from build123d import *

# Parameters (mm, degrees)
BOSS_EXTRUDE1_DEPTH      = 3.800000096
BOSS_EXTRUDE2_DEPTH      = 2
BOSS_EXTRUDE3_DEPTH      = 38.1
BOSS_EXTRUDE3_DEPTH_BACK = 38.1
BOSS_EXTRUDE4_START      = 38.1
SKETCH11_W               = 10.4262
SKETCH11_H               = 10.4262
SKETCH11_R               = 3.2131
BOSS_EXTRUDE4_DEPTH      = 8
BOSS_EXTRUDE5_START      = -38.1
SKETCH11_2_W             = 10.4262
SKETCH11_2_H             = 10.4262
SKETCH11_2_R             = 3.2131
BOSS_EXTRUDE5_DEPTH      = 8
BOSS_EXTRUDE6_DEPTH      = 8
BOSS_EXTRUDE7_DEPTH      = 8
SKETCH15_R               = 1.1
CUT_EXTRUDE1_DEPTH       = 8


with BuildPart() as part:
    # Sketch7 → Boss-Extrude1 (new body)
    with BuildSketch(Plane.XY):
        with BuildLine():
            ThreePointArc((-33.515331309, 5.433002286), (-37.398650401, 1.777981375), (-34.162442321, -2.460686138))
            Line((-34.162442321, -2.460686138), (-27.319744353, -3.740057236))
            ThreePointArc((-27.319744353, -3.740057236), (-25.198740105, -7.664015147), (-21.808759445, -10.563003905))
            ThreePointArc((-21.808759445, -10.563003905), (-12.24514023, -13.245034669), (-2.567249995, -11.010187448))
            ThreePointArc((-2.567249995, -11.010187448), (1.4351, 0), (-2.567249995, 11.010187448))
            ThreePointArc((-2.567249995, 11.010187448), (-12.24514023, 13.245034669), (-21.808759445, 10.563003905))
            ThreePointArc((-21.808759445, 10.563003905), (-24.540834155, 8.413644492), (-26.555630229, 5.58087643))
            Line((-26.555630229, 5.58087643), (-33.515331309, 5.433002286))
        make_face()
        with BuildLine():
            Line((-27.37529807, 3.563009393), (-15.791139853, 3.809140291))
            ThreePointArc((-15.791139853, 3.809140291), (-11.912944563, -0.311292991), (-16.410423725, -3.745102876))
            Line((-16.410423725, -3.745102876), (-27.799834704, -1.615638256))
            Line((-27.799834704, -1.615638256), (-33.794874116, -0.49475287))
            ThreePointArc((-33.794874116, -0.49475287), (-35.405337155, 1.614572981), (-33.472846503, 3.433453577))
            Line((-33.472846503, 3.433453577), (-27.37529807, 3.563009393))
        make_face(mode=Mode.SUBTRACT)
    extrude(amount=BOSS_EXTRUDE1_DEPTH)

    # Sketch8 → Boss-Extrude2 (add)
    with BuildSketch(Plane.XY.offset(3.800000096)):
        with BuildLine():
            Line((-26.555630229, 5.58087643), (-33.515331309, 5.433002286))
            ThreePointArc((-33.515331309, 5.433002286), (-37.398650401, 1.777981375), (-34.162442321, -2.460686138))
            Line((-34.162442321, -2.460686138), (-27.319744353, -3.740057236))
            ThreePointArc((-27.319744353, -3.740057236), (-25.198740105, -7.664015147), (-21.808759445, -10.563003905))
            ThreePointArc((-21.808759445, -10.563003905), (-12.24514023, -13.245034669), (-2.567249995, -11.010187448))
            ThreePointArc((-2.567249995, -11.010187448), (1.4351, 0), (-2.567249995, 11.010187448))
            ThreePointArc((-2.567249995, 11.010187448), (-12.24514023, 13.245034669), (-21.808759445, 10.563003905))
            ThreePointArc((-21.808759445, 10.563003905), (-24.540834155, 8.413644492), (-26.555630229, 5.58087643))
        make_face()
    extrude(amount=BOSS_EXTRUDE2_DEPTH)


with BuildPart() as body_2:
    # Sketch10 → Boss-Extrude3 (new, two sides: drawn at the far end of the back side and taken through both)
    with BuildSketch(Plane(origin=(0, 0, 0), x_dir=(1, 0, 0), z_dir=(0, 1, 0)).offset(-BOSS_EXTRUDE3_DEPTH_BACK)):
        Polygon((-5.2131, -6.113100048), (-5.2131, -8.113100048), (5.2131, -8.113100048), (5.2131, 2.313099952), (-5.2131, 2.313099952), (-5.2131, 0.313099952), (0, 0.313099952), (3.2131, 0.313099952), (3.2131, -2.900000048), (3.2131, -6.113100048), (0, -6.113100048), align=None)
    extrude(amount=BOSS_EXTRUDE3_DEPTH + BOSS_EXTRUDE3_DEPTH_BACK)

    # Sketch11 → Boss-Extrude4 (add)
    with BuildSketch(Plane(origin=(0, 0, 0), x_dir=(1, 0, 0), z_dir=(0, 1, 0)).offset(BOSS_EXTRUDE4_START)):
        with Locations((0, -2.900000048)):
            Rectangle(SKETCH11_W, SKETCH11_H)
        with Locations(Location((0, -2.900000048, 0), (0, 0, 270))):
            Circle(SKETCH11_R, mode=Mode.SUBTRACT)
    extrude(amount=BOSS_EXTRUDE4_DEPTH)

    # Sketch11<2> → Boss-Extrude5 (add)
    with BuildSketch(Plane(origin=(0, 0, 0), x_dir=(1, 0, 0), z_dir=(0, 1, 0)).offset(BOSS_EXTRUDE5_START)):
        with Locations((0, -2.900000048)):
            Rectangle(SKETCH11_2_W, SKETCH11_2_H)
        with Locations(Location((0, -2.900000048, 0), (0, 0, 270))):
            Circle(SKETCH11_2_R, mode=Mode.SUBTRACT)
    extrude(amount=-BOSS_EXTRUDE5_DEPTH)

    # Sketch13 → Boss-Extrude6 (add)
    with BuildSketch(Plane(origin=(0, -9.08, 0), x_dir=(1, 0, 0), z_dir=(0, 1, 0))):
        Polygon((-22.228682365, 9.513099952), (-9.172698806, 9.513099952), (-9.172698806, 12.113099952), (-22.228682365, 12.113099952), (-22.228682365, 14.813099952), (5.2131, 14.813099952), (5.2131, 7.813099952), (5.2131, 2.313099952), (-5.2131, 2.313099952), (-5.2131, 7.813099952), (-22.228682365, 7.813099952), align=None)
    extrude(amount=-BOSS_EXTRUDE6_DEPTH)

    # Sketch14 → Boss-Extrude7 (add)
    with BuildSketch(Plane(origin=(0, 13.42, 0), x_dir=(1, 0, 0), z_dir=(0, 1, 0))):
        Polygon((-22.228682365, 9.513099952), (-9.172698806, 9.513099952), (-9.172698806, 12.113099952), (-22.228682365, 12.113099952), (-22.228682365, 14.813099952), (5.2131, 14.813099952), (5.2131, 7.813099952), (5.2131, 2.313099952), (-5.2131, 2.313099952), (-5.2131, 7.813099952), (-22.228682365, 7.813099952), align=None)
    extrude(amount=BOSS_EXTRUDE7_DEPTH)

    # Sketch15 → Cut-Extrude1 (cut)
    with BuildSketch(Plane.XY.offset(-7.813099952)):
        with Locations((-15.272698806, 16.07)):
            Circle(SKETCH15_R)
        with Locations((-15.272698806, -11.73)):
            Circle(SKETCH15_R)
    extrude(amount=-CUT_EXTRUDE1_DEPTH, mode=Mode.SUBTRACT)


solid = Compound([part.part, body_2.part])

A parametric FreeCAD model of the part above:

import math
import FreeCAD as App
import Part
import Sketcher

V = App.Vector


def add_polygon(sketch, points):
    """Adds a closed chain of lines whose ends are joined by coincident constraints."""
    first, n = sketch.GeometryCount, len(points)
    for a, b in zip(points, points[1:] + points[:1]):
        sketch.addGeometry(Part.LineSegment(App.Vector(*a, 0), App.Vector(*b, 0)), False)
    for i in range(n):
        sketch.addConstraint(Sketcher.Constraint("Coincident", first + i, 2, first + (i + 1) % n, 1))

doc = App.newDocument("Part")
body = doc.addObject("PartDesign::Body", "Body")

# Sketch on XY plane
sketch1 = doc.addObject("Sketcher::SketchObject", "Sketch")
body.addObject(sketch1)
sketch1.AttachmentSupport = (doc.XY_Plane, [""])
sketch1.MapMode = "FlatFace"
sketch1.addGeometry([
    Part.ArcOfCircle(Part.Circle(V(-33.4, 1.5, 0), V(0, 0, 1), 4), math.radians(91), math.radians(259)),  # 0
    Part.LineSegment(V(-34.2, -2.5, 0), V(-27.3, -3.7, 0)),  # 1
    Part.ArcOfCircle(Part.Circle(V(-15.7, 0, 0), V(0, 0, 1), 12.2), math.radians(-162), math.radians(-120)),  # 2
    Part.ArcOfCircle(Part.Circle(V(-11.8, 6.8, 0), V(0, 0, 1), 20.1), math.radians(-120), math.radians(-63)),  # 3
    Part.ArcOfCircle(Part.Circle(V(-15.7, 0, 0), V(0, 0, 1), 17.1), math.radians(-40), math.radians(40)),  # 4
    Part.ArcOfCircle(Part.Circle(V(-11.8, -6.8, 0), V(0, 0, 1), 20.1), math.radians(63), math.radians(120)),  # 5
    Part.ArcOfCircle(Part.Circle(V(-15.7, 0, 0), V(0, 0, 1), 12.2), math.radians(120), math.radians(153)),  # 6
    Part.LineSegment(V(-26.6, 5.6, 0), V(-33.5, 5.4, 0)),  # 7
    Part.LineSegment(V(-33.5, 3.4, 0), V(-27.4, 3.6, 0)),  # 8
    Part.LineSegment(V(-27.4, 3.6, 0), V(-15.8, 3.8, 0)),  # 9
    Part.ArcOfCircle(Part.Circle(V(-15.7, 0, 0), V(0, 0, 1), 3.8), math.radians(-101), math.radians(91)),  # 10
    Part.LineSegment(V(-16.4, -3.7, 0), V(-27.8, -1.6, 0)),  # 11
    Part.LineSegment(V(-27.8, -1.6, 0), V(-33.8, -0.5, 0)),  # 12
    Part.ArcOfCircle(Part.Circle(V(-33.4, 1.5, 0), V(0, 0, 1), 2), math.radians(91), math.radians(259)),  # 13
], False)
sketch1.addConstraint([
    Sketcher.Constraint("Tangent", 0, 2, 1, 1),
    Sketcher.Constraint("Coincident", 1, 2, 2, 1),
    Sketcher.Constraint("Tangent", 2, 2, 3, 1),
    Sketcher.Constraint("Coincident", 3, 2, 4, 1),
    Sketcher.Constraint("Coincident", 4, 2, 5, 1),
    Sketcher.Constraint("Tangent", 5, 2, 6, 1),
    Sketcher.Constraint("Coincident", 6, 2, 7, 1),
    Sketcher.Constraint("Tangent", 7, 2, 0, 1),
    Sketcher.Constraint("Coincident", 8, 2, 9, 1),
    Sketcher.Constraint("Tangent", 9, 2, 10, 2),
    Sketcher.Constraint("Tangent", 10, 1, 11, 1),
    Sketcher.Constraint("Coincident", 11, 2, 12, 1),
    Sketcher.Constraint("Tangent", 12, 2, 13, 2),
    Sketcher.Constraint("Tangent", 13, 1, 8, 1),
    Sketcher.Constraint("Coincident", 4, 3, 2, 3),
    Sketcher.Constraint("Coincident", 6, 3, 2, 3),
    Sketcher.Constraint("Coincident", 10, 3, 2, 3),
    Sketcher.Constraint("Coincident", 13, 3, 0, 3),
    Sketcher.Constraint("Equal", 3, 5),
    Sketcher.Constraint("Equal", 2, 6),
    Sketcher.Constraint("Symmetric", 3, 3, 5, 3, -1),
    Sketcher.Constraint("Parallel", 7, 8),
    Sketcher.Constraint("Parallel", 8, 9),
    Sketcher.Constraint("Parallel", 1, 11),
    Sketcher.Constraint("Parallel", 11, 12),
    Sketcher.Constraint("Equal", 9, 11),
    Sketcher.Constraint("Radius", 10, 3.81),
    Sketcher.Constraint("Radius", 0, 3.9812),
    Sketcher.Constraint("Radius", 13, 1.9812),
    Sketcher.Constraint("Radius", 3, 20.059369),
    Sketcher.Constraint("Radius", 2, 12.197106),
    Sketcher.Constraint("Radius", 4, 17.145306),
    Sketcher.Constraint("DistanceY", -1, 1, 0, 3, 1.452701),
    Sketcher.Constraint("DistanceX", 8, 2, -1, 1, 27.375298),
    Sketcher.Constraint("DistanceX", 7, 2, 6, 2, 6.959701),
    Sketcher.Constraint("DistanceX", 0, 3, -1, 1, 33.430761),
    Sketcher.Constraint("DistanceY", -1, 1, 3, 3, 6.808919),
])
pad1 = doc.addObject("PartDesign::Pad", "Pad")
body.addObject(pad1)
pad1.Profile = sketch1
pad1.Length = 3.8

# Sketch on XY plane
sketch2 = doc.addObject("Sketcher::SketchObject", "Sketch001")
body.addObject(sketch2)
sketch2.AttachmentSupport = (doc.XY_Plane, [""])
sketch2.MapMode = "FlatFace"
sketch2.AttachmentOffset = App.Placement(V(0, 0, 3.8), App.Rotation())
sketch2.addGeometry([
    Part.LineSegment(V(-26.55563, 5.580876, 0), V(-33.515331, 5.433002, 0)),  # 0
    Part.ArcOfCircle(Part.Circle(V(-33.430761, 1.452701, 0), V(0, 0, 1), 3.9812), math.radians(91.217192), math.radians(259.409749)),  # 1
    Part.LineSegment(V(-34.162442, -2.460686, 0), V(-27.319744, -3.740057, 0)),  # 2
    Part.ArcOfCircle(Part.Circle(V(-15.710206, 0, 0), V(0, 0, 1), 12.197106), math.radians(-162.143456), math.radians(-120)),  # 3
    Part.ArcOfCircle(Part.Circle(V(-11.779075, 6.808919, 0), V(0, 0, 1), 20.059369), math.radians(-120), math.radians(-62.662693)),  # 4
    Part.ArcOfCircle(Part.Circle(V(-15.710206, 0, 0), V(0, 0, 1), 17.145306), math.radians(-39.953761), math.radians(39.953761)),  # 5
    Part.ArcOfCircle(Part.Circle(V(-11.779075, -6.808919, 0), V(0, 0, 1), 20.059369), math.radians(62.662693), math.radians(120)),  # 6
    Part.ArcOfCircle(Part.Circle(V(-15.710206, 0, 0), V(0, 0, 1), 12.197106), math.radians(120), math.radians(152.770396)),  # 7
], False)
sketch2.addConstraint([
    Sketcher.Constraint("Coincident", 0, 2, 1, 1),
    Sketcher.Constraint("Coincident", 1, 2, 2, 1),
    Sketcher.Constraint("Coincident", 2, 2, 3, 1),
    Sketcher.Constraint("Coincident", 3, 2, 4, 1),
    Sketcher.Constraint("Coincident", 4, 2, 5, 1),
    Sketcher.Constraint("Coincident", 5, 2, 6, 1),
    Sketcher.Constraint("Coincident", 6, 2, 7, 1),
    Sketcher.Constraint("Coincident", 7, 2, 0, 1),
    Sketcher.Constraint("Coincident", 5, 3, 3, 3),
    Sketcher.Constraint("Coincident", 7, 3, 3, 3),
    Sketcher.Constraint("PointOnObject", 3, 3, -1),
    Sketcher.Constraint("Radius", 1, 3.9812),
    Sketcher.Constraint("Radius", 4, 20.059369),
    Sketcher.Constraint("Radius", 6, 20.059369),
    Sketcher.Constraint("DistanceY", 0, 2, 6, 2, 5.130002),
    Sketcher.Constraint("Radius", 3, 12.197106),
    Sketcher.Constraint("Radius", 5, 17.145306),
    Sketcher.Constraint("Radius", 7, 12.197106),
    Sketcher.Constraint("DistanceY", -1, 1, 1, 3, 1.452701),
    Sketcher.Constraint("DistanceY", 1, 3, 0, 2, 3.980302),
    Sketcher.Constraint("DistanceX", 0, 2, 7, 2, 6.959701),
    Sketcher.Constraint("Distance", 0, 6.961272),
    Sketcher.Constraint("Distance", 2, 6.961272),
    Sketcher.Constraint("DistanceX", 1, 3, -1, 1, 33.430761),
    Sketcher.Constraint("DistanceY", -1, 1, 4, 3, 6.808919),
    Sketcher.Constraint("DistanceY", 6, 3, -1, 1, 6.808919),
    Sketcher.Constraint("DistanceX", 3, 2, -1, 1, 21.808759),
    Sketcher.Constraint("DistanceX", 1, 2, 1, 3, 0.731681),
])
pad2 = doc.addObject("PartDesign::Pad", "Pad001")
body.addObject(pad2)
pad2.Profile = sketch2
pad2.Length = 2
body2 = doc.addObject("PartDesign::Body", "Body001")

# Sketch on XZ plane
sketch3 = doc.addObject("Sketcher::SketchObject", "Sketch002")
body2.addObject(sketch3)
sketch3.AttachmentSupport = (doc.getObject("XZ_Plane001"), [""])
sketch3.MapMode = "FlatFace"
add_polygon(sketch3, [(-5.2, 6.1), (-5.2, 8.1), (5.2, 8.1), (5.2, -2.3), (-5.2, -2.3), (-5.2, -0.3), (3.2, -0.3), (3.2, 6.1)])  # lines 0-7
sketch3.addConstraint([
    Sketcher.Constraint("Vertical", 0),
    Sketcher.Constraint("Horizontal", 1),
    Sketcher.Constraint("Vertical", 2),
    Sketcher.Constraint("Horizontal", 3),
    Sketcher.Constraint("Vertical", 4),
    Sketcher.Constraint("Horizontal", 5),
    Sketcher.Constraint("Vertical", 6),
    Sketcher.Constraint("Horizontal", 7),
    Sketcher.Constraint("Vertical", 0, 2, 3, 2),
    Sketcher.Constraint("Equal", 3, 2),
    Sketcher.Constraint("Equal", 0, 4),
    Sketcher.Constraint("DistanceY", 0, 1, 0, 2, 2.0),
    Sketcher.Constraint("DistanceX", 5, 2, 2, 2, 2.0),
    Sketcher.Constraint("DistanceX", 1, 1, 1, 2, 10.4262),
    Sketcher.Constraint("DistanceX", 0, 2, -1, 1, 5.2131),
    Sketcher.Constraint("DistanceY", -1, 1, 0, 2, 8.1131),
])
pad3 = doc.addObject("PartDesign::Pad", "Pad002")
body2.addObject(pad3)
pad3.Profile = sketch3
pad3.Type = "TwoLengths"
pad3.Length = 38.1
pad3.Length2 = 38.1
pad3.Reversed = True

# Sketch on XZ plane
sketch4 = doc.addObject("Sketcher::SketchObject", "Sketch003")
body2.addObject(sketch4)
sketch4.AttachmentSupport = (doc.getObject("XZ_Plane001"), [""])
sketch4.MapMode = "FlatFace"
sketch4.AttachmentOffset = App.Placement(V(0, 0, -38.1), App.Rotation())
add_polygon(sketch4, [(-5.2, -2.3), (-5.2, 8.1), (5.2, 8.1), (5.2, -2.3)])  # lines 0-3
sketch4.addGeometry(Part.Circle(V(0, 2.9, 0), V(0, 0, 1), 3.2), False)  # 4
sketch4.addConstraint([
    Sketcher.Constraint("Vertical", 0),
    Sketcher.Constraint("Horizontal", 1),
    Sketcher.Constraint("Vertical", 2),
    Sketcher.Constraint("Horizontal", 3),
    Sketcher.Constraint("PointOnObject", 4, 3, -2),
    Sketcher.Constraint("Equal", 3, 0),
    Sketcher.Constraint("Diameter", 4, 6.4262),
    Sketcher.Constraint("DistanceY", -1, 1, 4, 3, 2.9),
    Sketcher.Constraint("DistanceX", 1, 1, 1, 2, 10.4262),
    Sketcher.Constraint("DistanceX", 0, 2, -1, 1, 5.2131),
    Sketcher.Constraint("DistanceY", -1, 1, 0, 2, 8.1131),
])
pad4 = doc.addObject("PartDesign::Pad", "Pad003")
body2.addObject(pad4)
pad4.Profile = sketch4
pad4.Length = 8
pad4.Reversed = True

# Sketch on XZ plane
sketch5 = doc.addObject("Sketcher::SketchObject", "Sketch004")
body2.addObject(sketch5)
sketch5.AttachmentSupport = (doc.getObject("XZ_Plane001"), [""])
sketch5.MapMode = "FlatFace"
sketch5.AttachmentOffset = App.Placement(V(0, 0, 38.1), App.Rotation())
add_polygon(sketch5, [(-5.2, -2.3), (-5.2, 8.1), (5.2, 8.1), (5.2, -2.3)])  # lines 0-3
sketch5.addGeometry(Part.Circle(V(0, 2.9, 0), V(0, 0, 1), 3.2), False)  # 4
sketch5.addConstraint([
    Sketcher.Constraint("Vertical", 0),
    Sketcher.Constraint("Horizontal", 1),
    Sketcher.Constraint("Vertical", 2),
    Sketcher.Constraint("Horizontal", 3),
    Sketcher.Constraint("PointOnObject", 4, 3, -2),
    Sketcher.Constraint("Equal", 3, 0),
    Sketcher.Constraint("Diameter", 4, 6.4262),
    Sketcher.Constraint("DistanceY", -1, 1, 4, 3, 2.9),
    Sketcher.Constraint("DistanceX", 1, 1, 1, 2, 10.4262),
    Sketcher.Constraint("DistanceX", 0, 2, -1, 1, 5.2131),
    Sketcher.Constraint("DistanceY", -1, 1, 0, 2, 8.1131),
])
pad5 = doc.addObject("PartDesign::Pad", "Pad004")
body2.addObject(pad5)
pad5.Profile = sketch5
pad5.Length = 8

# Sketch on XZ plane
sketch6 = doc.addObject("Sketcher::SketchObject", "Sketch005")
body2.addObject(sketch6)
sketch6.AttachmentSupport = (doc.getObject("XZ_Plane001"), [""])
sketch6.MapMode = "FlatFace"
sketch6.AttachmentOffset = App.Placement(V(0, 0, 9.08), App.Rotation())
add_polygon(sketch6, [(-9.2, -9.5), (-22.2, -9.5), (-22.2, -7.8), (-5.2, -7.8), (-5.2, -2.3), (5.2, -2.3), (5.2, -14.8), (-22.2, -14.8), (-22.2, -12.1), (-9.2, -12.1)])  # lines 0-9
sketch6.addConstraint([
    Sketcher.Constraint("Horizontal", 0),
    Sketcher.Constraint("Vertical", 1),
    Sketcher.Constraint("Horizontal", 2),
    Sketcher.Constraint("Vertical", 3),
    Sketcher.Constraint("Horizontal", 4),
    Sketcher.Constraint("Vertical", 5),
    Sketcher.Constraint("Horizontal", 6),
    Sketcher.Constraint("Vertical", 7),
    Sketcher.Constraint("Horizontal", 8),
    Sketcher.Constraint("Vertical", 9),
    Sketcher.Constraint("Vertical", 1, 2, 6, 2),
    Sketcher.Constraint("DistanceY", 1, 1, 1, 2, 1.7),
    Sketcher.Constraint("DistanceY", 3, 1, 3, 2, 5.5),
    Sketcher.Constraint("DistanceY", 5, 2, 5, 1, 12.5),
    Sketcher.Constraint("DistanceY", 7, 1, 7, 2, 2.7),
    Sketcher.Constraint("DistanceX", 4, 1, 4, 2, 10.4262),
    Sketcher.Constraint("DistanceY", 0, 2, -1, 1, 9.5131),
    Sketcher.Constraint("DistanceX", 2, 2, -1, 1, 5.2131),
    Sketcher.Constraint("DistanceX", 8, 2, -1, 1, 9.172699),
    Sketcher.Constraint("DistanceX", 0, 2, 0, 1, 13.055984),
])
pad6 = doc.addObject("PartDesign::Pad", "Pad005")
body2.addObject(pad6)
pad6.Profile = sketch6
pad6.Length = 8

# Sketch on XZ plane
sketch7 = doc.addObject("Sketcher::SketchObject", "Sketch006")
body2.addObject(sketch7)
sketch7.AttachmentSupport = (doc.getObject("XZ_Plane001"), [""])
sketch7.MapMode = "FlatFace"
sketch7.AttachmentOffset = App.Placement(V(0, 0, -13.42), App.Rotation())
add_polygon(sketch7, [(-9.2, -9.5), (-22.2, -9.5), (-22.2, -7.8), (-5.2, -7.8), (-5.2, -2.3), (5.2, -2.3), (5.2, -14.8), (-22.2, -14.8), (-22.2, -12.1), (-9.2, -12.1)])  # lines 0-9
sketch7.addConstraint([
    Sketcher.Constraint("Horizontal", 0),
    Sketcher.Constraint("Vertical", 1),
    Sketcher.Constraint("Horizontal", 2),
    Sketcher.Constraint("Vertical", 3),
    Sketcher.Constraint("Horizontal", 4),
    Sketcher.Constraint("Vertical", 5),
    Sketcher.Constraint("Horizontal", 6),
    Sketcher.Constraint("Vertical", 7),
    Sketcher.Constraint("Horizontal", 8),
    Sketcher.Constraint("Vertical", 9),
    Sketcher.Constraint("Vertical", 1, 2, 6, 2),
    Sketcher.Constraint("DistanceY", 1, 1, 1, 2, 1.7),
    Sketcher.Constraint("DistanceY", 3, 1, 3, 2, 5.5),
    Sketcher.Constraint("DistanceY", 5, 2, 5, 1, 12.5),
    Sketcher.Constraint("DistanceY", 7, 1, 7, 2, 2.7),
    Sketcher.Constraint("DistanceX", 4, 1, 4, 2, 10.4262),
    Sketcher.Constraint("DistanceY", 0, 2, -1, 1, 9.5131),
    Sketcher.Constraint("DistanceX", 2, 2, -1, 1, 5.2131),
    Sketcher.Constraint("DistanceX", 8, 2, -1, 1, 9.172699),
    Sketcher.Constraint("DistanceX", 0, 2, 0, 1, 13.055984),
])
pad7 = doc.addObject("PartDesign::Pad", "Pad006")
body2.addObject(pad7)
pad7.Profile = sketch7
pad7.Length = 8
pad7.Reversed = True

# Sketch on XY plane
sketch8 = doc.addObject("Sketcher::SketchObject", "Sketch007")
body2.addObject(sketch8)
sketch8.AttachmentSupport = (doc.getObject("XY_Plane001"), [""])
sketch8.MapMode = "FlatFace"
sketch8.AttachmentOffset = App.Placement(V(0, 0, -7.8131), App.Rotation())
sketch8.addGeometry([
    Part.Circle(V(-15.3, 16.1, 0), V(0, 0, 1), 1.1),
    Part.Circle(V(-15.3, -11.7, 0), V(0, 0, 1), 1.1),
], False)
sketch8.addConstraint([
    Sketcher.Constraint("Equal", 0, 1),
    Sketcher.Constraint("Vertical", 0, 3, 1, 3),
    Sketcher.Constraint("Diameter", 0, 2.2),
    Sketcher.Constraint("DistanceY", 1, 3, 0, 3, 27.8),
    Sketcher.Constraint("DistanceY", -1, 1, 0, 3, 16.07),
    Sketcher.Constraint("DistanceX", 0, 3, -1, 1, 15.272699),
])
pocket1 = doc.addObject("PartDesign::Pocket", "Pocket")
body2.addObject(pocket1)
pocket1.Profile = sketch8
pocket1.Length = 8

doc.recompute()
